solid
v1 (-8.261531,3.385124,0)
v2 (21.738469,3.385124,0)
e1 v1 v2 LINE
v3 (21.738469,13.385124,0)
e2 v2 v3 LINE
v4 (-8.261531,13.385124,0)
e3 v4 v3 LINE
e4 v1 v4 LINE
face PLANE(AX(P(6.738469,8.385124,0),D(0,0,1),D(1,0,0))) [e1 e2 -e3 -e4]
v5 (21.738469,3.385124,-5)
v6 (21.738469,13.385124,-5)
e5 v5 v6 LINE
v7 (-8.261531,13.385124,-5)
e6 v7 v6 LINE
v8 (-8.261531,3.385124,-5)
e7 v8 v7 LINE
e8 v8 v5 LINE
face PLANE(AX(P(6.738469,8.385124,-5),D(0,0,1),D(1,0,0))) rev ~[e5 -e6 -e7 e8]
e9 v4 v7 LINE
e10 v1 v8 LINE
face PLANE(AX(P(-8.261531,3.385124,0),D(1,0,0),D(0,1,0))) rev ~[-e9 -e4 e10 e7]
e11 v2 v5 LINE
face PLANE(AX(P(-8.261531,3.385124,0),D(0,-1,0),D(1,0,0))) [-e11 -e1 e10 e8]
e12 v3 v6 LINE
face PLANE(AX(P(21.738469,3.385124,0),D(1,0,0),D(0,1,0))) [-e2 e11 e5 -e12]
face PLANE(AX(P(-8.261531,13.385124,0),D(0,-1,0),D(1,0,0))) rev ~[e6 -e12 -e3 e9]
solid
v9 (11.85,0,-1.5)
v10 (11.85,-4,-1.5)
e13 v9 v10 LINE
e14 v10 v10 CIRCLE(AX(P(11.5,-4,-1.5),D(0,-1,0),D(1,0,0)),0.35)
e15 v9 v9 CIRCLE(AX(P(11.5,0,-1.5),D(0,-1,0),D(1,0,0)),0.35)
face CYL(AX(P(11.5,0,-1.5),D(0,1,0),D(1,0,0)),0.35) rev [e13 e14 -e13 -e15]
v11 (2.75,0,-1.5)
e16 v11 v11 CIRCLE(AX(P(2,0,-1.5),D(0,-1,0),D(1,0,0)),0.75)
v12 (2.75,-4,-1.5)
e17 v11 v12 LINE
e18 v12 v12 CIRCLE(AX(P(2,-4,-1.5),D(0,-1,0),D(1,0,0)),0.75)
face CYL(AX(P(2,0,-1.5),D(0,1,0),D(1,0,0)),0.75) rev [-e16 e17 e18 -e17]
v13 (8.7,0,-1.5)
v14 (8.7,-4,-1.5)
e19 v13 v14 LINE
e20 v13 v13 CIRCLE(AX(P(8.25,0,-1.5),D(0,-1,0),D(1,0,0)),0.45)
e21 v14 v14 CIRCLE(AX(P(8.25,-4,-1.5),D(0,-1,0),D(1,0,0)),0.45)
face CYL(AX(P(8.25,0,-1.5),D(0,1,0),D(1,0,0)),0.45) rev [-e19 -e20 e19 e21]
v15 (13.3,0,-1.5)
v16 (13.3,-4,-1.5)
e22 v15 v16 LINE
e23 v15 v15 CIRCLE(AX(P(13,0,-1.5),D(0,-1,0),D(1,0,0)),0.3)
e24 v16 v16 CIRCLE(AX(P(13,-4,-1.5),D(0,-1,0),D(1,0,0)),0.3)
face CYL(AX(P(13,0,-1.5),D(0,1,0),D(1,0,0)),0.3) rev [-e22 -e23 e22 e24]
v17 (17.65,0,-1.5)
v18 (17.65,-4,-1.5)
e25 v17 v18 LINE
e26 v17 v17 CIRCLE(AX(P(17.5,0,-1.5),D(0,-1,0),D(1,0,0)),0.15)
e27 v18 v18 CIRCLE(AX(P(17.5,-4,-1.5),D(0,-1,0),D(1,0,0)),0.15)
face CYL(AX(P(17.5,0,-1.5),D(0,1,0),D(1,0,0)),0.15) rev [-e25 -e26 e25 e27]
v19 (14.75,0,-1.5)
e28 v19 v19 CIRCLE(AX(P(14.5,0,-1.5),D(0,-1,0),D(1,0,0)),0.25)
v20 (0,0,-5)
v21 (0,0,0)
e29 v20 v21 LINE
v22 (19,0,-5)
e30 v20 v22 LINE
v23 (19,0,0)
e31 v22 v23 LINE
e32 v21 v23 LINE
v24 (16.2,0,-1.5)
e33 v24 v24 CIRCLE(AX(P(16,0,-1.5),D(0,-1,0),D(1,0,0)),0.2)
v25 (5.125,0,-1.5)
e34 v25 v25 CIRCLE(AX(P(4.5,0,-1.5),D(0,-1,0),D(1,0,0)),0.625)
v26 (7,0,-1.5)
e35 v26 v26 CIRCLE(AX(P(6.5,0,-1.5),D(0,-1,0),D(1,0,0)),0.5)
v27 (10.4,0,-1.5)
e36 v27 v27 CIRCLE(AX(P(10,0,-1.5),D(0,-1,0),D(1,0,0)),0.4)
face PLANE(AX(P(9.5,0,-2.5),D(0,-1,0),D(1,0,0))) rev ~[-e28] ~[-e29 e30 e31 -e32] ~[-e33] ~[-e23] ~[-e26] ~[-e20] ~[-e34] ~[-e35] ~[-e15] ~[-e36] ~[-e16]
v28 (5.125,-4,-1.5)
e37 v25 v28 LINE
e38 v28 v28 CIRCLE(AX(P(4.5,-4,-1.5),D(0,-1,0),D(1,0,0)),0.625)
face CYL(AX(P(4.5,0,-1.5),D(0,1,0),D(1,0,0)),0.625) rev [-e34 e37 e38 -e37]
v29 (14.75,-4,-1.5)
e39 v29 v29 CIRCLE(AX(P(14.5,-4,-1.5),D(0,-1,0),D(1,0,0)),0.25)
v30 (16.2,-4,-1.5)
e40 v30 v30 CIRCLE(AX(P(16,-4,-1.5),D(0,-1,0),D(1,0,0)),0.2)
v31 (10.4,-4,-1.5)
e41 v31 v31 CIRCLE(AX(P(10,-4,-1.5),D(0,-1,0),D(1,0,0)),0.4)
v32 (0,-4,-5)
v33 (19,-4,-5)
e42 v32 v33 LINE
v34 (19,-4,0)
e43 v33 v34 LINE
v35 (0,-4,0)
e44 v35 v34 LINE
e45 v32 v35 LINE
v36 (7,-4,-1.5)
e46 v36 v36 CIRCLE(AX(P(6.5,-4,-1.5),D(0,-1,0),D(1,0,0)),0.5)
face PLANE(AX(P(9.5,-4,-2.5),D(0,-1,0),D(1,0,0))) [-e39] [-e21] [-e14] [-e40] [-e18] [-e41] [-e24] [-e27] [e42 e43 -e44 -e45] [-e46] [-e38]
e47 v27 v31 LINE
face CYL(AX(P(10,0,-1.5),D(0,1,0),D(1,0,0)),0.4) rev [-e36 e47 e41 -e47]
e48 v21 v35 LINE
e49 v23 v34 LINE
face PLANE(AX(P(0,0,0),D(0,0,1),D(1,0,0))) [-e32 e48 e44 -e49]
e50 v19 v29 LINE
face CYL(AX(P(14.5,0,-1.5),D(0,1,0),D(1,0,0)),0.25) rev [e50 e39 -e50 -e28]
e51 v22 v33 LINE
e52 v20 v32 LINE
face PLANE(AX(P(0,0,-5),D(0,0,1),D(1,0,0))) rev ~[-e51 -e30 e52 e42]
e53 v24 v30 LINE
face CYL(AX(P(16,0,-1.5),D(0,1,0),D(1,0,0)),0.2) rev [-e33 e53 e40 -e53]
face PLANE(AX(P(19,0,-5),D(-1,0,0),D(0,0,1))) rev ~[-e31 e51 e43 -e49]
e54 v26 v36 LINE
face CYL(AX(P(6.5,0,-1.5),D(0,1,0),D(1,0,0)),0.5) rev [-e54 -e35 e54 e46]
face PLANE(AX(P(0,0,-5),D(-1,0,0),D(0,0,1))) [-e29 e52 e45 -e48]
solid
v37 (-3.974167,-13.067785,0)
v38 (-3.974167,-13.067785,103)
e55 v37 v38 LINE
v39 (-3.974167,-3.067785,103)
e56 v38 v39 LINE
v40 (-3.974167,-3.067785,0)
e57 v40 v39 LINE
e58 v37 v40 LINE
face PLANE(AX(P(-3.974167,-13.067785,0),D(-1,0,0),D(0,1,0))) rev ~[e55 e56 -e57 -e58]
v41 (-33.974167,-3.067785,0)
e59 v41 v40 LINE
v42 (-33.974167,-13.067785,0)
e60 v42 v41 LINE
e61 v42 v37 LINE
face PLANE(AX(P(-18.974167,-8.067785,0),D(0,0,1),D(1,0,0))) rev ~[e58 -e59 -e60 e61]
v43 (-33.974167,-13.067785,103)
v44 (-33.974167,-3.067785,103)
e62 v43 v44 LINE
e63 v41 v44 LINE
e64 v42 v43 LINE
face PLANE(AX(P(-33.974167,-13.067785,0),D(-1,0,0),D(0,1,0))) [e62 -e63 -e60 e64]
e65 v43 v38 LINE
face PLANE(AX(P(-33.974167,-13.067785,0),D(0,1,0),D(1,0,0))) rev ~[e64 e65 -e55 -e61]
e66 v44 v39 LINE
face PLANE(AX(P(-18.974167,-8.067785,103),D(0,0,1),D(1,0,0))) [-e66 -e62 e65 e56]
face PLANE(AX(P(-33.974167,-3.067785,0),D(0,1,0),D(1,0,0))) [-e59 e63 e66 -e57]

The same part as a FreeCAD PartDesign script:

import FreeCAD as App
import Part
import Sketcher
from FreeCAD import Vector
Q = App.Units.Quantity


def add_polygon(sketch, points):
    """Adds a closed chain of lines whose ends are joined by coincident constraints."""
    first, n = sketch.GeometryCount, len(points)
    for a, b in zip(points, points[1:] + points[:1]):
        sketch.addGeometry(Part.LineSegment(App.Vector(*a, 0), App.Vector(*b, 0)), False)
    for i in range(n):
        sketch.addConstraint(Sketcher.Constraint("Coincident", first + i, 2, first + (i + 1) % n, 1))

doc = App.newDocument("Part")
body = doc.addObject("PartDesign::Body", "Body")

# Sketch on XZ plane
sketch1 = body.newObject("Sketcher::SketchObject", "Sketch")
sketch1.AttachmentSupport = (doc.getObject("XZ_Plane"), [""])
sketch1.MapMode = "FlatFace"
add_polygon(sketch1, [(0, 0), (0, -5), (19, -5), (19, 0)])  # lines 0-3
sketch1.addGeometry(Part.Circle(Vector(2, -1.5, 0), Vector(0, 0, 1), 0.75), False)  # 4
sketch1.addGeometry(Part.Circle(Vector(4.5, -1.5, 0), Vector(0, 0, 1), 0.625), False)  # 5
sketch1.addGeometry(Part.Circle(Vector(6.5, -1.5, 0), Vector(0, 0, 1), 0.5), False)  # 6
sketch1.addGeometry(Part.Circle(Vector(8.25, -1.5, 0), Vector(0, 0, 1), 0.45), False)  # 7
sketch1.addGeometry(Part.Circle(Vector(10, -1.5, 0), Vector(0, 0, 1), 0.4), False)  # 8
sketch1.addGeometry(Part.Circle(Vector(11.5, -1.5, 0), Vector(0, 0, 1), 0.35), False)  # 9
sketch1.addGeometry(Part.Circle(Vector(13, -1.5, 0), Vector(0, 0, 1), 0.3), False)  # 10
sketch1.addGeometry(Part.Circle(Vector(14.5, -1.5, 0), Vector(0, 0, 1), 0.25), False)  # 11
sketch1.addGeometry(Part.Circle(Vector(16, -1.5, 0), Vector(0, 0, 1), 0.2), False)  # 12
sketch1.addGeometry(Part.Circle(Vector(17.5, -1.5, 0), Vector(0, 0, 1), 0.15), False)  # 13
sketch1.addConstraint(Sketcher.Constraint("Vertical", 0))
sketch1.addConstraint(Sketcher.Constraint("Horizontal", 1))
sketch1.addConstraint(Sketcher.Constraint("Vertical", 2))
sketch1.addConstraint(Sketcher.Constraint("Horizontal", 3))
sketch1.addConstraint(Sketcher.Constraint("Coincident", 3, 2, -1, 1))
sketch1.addConstraint(Sketcher.Constraint("Horizontal", 4, 3, 5, 3))
sketch1.addConstraint(Sketcher.Constraint("Horizontal", 5, 3, 6, 3))
sketch1.addConstraint(Sketcher.Constraint("Horizontal", 6, 3, 7, 3))
sketch1.addConstraint(Sketcher.Constraint("Horizontal", 7, 3, 8, 3))
sketch1.addConstraint(Sketcher.Constraint("Horizontal", 8, 3, 9, 3))
sketch1.addConstraint(Sketcher.Constraint("Horizontal", 9, 3, 10, 3))
sketch1.addConstraint(Sketcher.Constraint("Horizontal", 10, 3, 11, 3))
sketch1.addConstraint(Sketcher.Constraint("Horizontal", 11, 3, 12, 3))
sketch1.addConstraint(Sketcher.Constraint("Horizontal", 12, 3, 13, 3))
sketch1.addConstraint(Sketcher.Constraint("Diameter", 6, Q("1 mm")))
sketch1.addConstraint(Sketcher.Constraint("Diameter", 4, Q("1.5 mm")))
sketch1.addConstraint(Sketcher.Constraint("Diameter", 7, Q("0.9 mm")))
sketch1.addConstraint(Sketcher.Constraint("Diameter", 8, Q("0.8 mm")))
sketch1.addConstraint(Sketcher.Constraint("Diameter", 9, Q("0.7 mm")))
sketch1.addConstraint(Sketcher.Constraint("Diameter", 10, Q("0.6 mm")))
sketch1.addConstraint(Sketcher.Constraint("Diameter", 11, Q("0.5 mm")))
sketch1.addConstraint(Sketcher.Constraint("Diameter", 12, Q("0.4 mm")))
sketch1.addConstraint(Sketcher.Constraint("Diameter", 13, Q("0.3 mm")))
sketch1.addConstraint(Sketcher.Constraint("Diameter", 5, Q("1.25 mm")))
sketch1.addConstraint(Sketcher.Constraint("DistanceX", 1, 1, 1, 2, Q("19 mm")))
sketch1.addConstraint(Sketcher.Constraint("DistanceY", 0, 2, 0, 1, Q("5 mm")))
sketch1.addConstraint(Sketcher.Constraint("DistanceX", -1, 1, 4, 3, Q("2 mm")))
sketch1.addConstraint(Sketcher.Constraint("DistanceX", -1, 1, 8, 3, Q("10 mm")))
sketch1.addConstraint(Sketcher.Constraint("DistanceX", -1, 1, 10, 3, Q("13 mm")))
sketch1.addConstraint(Sketcher.Constraint("DistanceX", -1, 1, 12, 3, Q("16 mm")))
sketch1.addConstraint(Sketcher.Constraint("DistanceX", 5, 3, 6, 3, Q("2 mm")))
sketch1.addConstraint(Sketcher.Constraint("DistanceX", 6, 3, 9, 3, Q("5 mm")))
sketch1.addConstraint(Sketcher.Constraint("DistanceX", 9, 3, 11, 3, Q("3 mm")))
sketch1.addConstraint(Sketcher.Constraint("DistanceX", 11, 3, 13, 3, Q("3 mm")))
sketch1.addConstraint(Sketcher.Constraint("DistanceY", 4, 3, -1, 1, Q("1.5 mm")))
sketch1.addConstraint(Sketcher.Constraint("DistanceX", -1, 1, 5, 3, Q("4.5 mm")))
sketch1.addConstraint(Sketcher.Constraint("DistanceX", -1, 1, 7, 3, Q("8.25 mm")))
pad1 = body.newObject("PartDesign::Pad", "Pad")
pad1.Profile = sketch1
pad1.Length = 4
body2 = doc.addObject("PartDesign::Body", "Body001")

# Sketch on XY plane
sketch2 = body2.newObject("Sketcher::SketchObject", "Sketch001")
sketch2.AttachmentSupport = (doc.getObject("XY_Plane001"), [""])
sketch2.MapMode = "FlatFace"
add_polygon(sketch2, [(-8.261531, 13.385124), (-8.261531, 3.385124), (21.738469, 3.385124), (21.738469, 13.385124)])  # lines 0-3
sketch2.addConstraint(Sketcher.Constraint("Vertical", 0))
sketch2.addConstraint(Sketcher.Constraint("Horizontal", 1))
sketch2.addConstraint(Sketcher.Constraint("Vertical", 2))
sketch2.addConstraint(Sketcher.Constraint("Horizontal", 3))
sketch2.addConstraint(Sketcher.Constraint("DistanceX", 1, 1, 1, 2, Q("30 mm")))
sketch2.addConstraint(Sketcher.Constraint("DistanceY", 0, 2, 0, 1, Q("10 mm")))
sketch2.addConstraint(Sketcher.Constraint("DistanceX", 0, 2, -1, 1, Q("8.261531 mm")))
sketch2.addConstraint(Sketcher.Constraint("DistanceY", -1, 1, 0, 2, Q("3.385124 mm")))
pad2 = body2.newObject("PartDesign::Pad", "Pad001")
pad2.Profile = sketch2
pad2.Length = 5
pad2.Reversed = True
body3 = doc.addObject("PartDesign::Body", "Body002")

# Sketch on XY plane
sketch3 = body3.newObject("Sketcher::SketchObject", "Sketch002")
sketch3.AttachmentSupport = (doc.getObject("XY_Plane002"), [""])
sketch3.MapMode = "FlatFace"
add_polygon(sketch3, [(-33.974167, -3.067785), (-33.974167, -13.067785), (-3.974167, -13.067785), (-3.974167, -3.067785)])  # lines 0-3
sketch3.addConstraint(Sketcher.Constraint("Vertical", 0))
sketch3.addConstraint(Sketcher.Constraint("Horizontal", 1))
sketch3.addConstraint(Sketcher.Constraint("Vertical", 2))
sketch3.addConstraint(Sketcher.Constraint("Horizontal", 3))
sketch3.addConstraint(Sketcher.Constraint("DistanceX", 1, 1, 1, 2, Q("30 mm")))
sketch3.addConstraint(Sketcher.Constraint("DistanceY", 0, 2, 0, 1, Q("10 mm")))
sketch3.addConstraint(Sketcher.Constraint("DistanceX", 0, 2, -1, 1, Q("33.974167 mm")))
sketch3.addConstraint(Sketcher.Constraint("DistanceY", 0, 2, -1, 1, Q("13.067785 mm")))
pad3 = body3.newObject("PartDesign::Pad", "Pad002")
pad3.Profile = sketch3
pad3.Length = 103

doc.recompute()
